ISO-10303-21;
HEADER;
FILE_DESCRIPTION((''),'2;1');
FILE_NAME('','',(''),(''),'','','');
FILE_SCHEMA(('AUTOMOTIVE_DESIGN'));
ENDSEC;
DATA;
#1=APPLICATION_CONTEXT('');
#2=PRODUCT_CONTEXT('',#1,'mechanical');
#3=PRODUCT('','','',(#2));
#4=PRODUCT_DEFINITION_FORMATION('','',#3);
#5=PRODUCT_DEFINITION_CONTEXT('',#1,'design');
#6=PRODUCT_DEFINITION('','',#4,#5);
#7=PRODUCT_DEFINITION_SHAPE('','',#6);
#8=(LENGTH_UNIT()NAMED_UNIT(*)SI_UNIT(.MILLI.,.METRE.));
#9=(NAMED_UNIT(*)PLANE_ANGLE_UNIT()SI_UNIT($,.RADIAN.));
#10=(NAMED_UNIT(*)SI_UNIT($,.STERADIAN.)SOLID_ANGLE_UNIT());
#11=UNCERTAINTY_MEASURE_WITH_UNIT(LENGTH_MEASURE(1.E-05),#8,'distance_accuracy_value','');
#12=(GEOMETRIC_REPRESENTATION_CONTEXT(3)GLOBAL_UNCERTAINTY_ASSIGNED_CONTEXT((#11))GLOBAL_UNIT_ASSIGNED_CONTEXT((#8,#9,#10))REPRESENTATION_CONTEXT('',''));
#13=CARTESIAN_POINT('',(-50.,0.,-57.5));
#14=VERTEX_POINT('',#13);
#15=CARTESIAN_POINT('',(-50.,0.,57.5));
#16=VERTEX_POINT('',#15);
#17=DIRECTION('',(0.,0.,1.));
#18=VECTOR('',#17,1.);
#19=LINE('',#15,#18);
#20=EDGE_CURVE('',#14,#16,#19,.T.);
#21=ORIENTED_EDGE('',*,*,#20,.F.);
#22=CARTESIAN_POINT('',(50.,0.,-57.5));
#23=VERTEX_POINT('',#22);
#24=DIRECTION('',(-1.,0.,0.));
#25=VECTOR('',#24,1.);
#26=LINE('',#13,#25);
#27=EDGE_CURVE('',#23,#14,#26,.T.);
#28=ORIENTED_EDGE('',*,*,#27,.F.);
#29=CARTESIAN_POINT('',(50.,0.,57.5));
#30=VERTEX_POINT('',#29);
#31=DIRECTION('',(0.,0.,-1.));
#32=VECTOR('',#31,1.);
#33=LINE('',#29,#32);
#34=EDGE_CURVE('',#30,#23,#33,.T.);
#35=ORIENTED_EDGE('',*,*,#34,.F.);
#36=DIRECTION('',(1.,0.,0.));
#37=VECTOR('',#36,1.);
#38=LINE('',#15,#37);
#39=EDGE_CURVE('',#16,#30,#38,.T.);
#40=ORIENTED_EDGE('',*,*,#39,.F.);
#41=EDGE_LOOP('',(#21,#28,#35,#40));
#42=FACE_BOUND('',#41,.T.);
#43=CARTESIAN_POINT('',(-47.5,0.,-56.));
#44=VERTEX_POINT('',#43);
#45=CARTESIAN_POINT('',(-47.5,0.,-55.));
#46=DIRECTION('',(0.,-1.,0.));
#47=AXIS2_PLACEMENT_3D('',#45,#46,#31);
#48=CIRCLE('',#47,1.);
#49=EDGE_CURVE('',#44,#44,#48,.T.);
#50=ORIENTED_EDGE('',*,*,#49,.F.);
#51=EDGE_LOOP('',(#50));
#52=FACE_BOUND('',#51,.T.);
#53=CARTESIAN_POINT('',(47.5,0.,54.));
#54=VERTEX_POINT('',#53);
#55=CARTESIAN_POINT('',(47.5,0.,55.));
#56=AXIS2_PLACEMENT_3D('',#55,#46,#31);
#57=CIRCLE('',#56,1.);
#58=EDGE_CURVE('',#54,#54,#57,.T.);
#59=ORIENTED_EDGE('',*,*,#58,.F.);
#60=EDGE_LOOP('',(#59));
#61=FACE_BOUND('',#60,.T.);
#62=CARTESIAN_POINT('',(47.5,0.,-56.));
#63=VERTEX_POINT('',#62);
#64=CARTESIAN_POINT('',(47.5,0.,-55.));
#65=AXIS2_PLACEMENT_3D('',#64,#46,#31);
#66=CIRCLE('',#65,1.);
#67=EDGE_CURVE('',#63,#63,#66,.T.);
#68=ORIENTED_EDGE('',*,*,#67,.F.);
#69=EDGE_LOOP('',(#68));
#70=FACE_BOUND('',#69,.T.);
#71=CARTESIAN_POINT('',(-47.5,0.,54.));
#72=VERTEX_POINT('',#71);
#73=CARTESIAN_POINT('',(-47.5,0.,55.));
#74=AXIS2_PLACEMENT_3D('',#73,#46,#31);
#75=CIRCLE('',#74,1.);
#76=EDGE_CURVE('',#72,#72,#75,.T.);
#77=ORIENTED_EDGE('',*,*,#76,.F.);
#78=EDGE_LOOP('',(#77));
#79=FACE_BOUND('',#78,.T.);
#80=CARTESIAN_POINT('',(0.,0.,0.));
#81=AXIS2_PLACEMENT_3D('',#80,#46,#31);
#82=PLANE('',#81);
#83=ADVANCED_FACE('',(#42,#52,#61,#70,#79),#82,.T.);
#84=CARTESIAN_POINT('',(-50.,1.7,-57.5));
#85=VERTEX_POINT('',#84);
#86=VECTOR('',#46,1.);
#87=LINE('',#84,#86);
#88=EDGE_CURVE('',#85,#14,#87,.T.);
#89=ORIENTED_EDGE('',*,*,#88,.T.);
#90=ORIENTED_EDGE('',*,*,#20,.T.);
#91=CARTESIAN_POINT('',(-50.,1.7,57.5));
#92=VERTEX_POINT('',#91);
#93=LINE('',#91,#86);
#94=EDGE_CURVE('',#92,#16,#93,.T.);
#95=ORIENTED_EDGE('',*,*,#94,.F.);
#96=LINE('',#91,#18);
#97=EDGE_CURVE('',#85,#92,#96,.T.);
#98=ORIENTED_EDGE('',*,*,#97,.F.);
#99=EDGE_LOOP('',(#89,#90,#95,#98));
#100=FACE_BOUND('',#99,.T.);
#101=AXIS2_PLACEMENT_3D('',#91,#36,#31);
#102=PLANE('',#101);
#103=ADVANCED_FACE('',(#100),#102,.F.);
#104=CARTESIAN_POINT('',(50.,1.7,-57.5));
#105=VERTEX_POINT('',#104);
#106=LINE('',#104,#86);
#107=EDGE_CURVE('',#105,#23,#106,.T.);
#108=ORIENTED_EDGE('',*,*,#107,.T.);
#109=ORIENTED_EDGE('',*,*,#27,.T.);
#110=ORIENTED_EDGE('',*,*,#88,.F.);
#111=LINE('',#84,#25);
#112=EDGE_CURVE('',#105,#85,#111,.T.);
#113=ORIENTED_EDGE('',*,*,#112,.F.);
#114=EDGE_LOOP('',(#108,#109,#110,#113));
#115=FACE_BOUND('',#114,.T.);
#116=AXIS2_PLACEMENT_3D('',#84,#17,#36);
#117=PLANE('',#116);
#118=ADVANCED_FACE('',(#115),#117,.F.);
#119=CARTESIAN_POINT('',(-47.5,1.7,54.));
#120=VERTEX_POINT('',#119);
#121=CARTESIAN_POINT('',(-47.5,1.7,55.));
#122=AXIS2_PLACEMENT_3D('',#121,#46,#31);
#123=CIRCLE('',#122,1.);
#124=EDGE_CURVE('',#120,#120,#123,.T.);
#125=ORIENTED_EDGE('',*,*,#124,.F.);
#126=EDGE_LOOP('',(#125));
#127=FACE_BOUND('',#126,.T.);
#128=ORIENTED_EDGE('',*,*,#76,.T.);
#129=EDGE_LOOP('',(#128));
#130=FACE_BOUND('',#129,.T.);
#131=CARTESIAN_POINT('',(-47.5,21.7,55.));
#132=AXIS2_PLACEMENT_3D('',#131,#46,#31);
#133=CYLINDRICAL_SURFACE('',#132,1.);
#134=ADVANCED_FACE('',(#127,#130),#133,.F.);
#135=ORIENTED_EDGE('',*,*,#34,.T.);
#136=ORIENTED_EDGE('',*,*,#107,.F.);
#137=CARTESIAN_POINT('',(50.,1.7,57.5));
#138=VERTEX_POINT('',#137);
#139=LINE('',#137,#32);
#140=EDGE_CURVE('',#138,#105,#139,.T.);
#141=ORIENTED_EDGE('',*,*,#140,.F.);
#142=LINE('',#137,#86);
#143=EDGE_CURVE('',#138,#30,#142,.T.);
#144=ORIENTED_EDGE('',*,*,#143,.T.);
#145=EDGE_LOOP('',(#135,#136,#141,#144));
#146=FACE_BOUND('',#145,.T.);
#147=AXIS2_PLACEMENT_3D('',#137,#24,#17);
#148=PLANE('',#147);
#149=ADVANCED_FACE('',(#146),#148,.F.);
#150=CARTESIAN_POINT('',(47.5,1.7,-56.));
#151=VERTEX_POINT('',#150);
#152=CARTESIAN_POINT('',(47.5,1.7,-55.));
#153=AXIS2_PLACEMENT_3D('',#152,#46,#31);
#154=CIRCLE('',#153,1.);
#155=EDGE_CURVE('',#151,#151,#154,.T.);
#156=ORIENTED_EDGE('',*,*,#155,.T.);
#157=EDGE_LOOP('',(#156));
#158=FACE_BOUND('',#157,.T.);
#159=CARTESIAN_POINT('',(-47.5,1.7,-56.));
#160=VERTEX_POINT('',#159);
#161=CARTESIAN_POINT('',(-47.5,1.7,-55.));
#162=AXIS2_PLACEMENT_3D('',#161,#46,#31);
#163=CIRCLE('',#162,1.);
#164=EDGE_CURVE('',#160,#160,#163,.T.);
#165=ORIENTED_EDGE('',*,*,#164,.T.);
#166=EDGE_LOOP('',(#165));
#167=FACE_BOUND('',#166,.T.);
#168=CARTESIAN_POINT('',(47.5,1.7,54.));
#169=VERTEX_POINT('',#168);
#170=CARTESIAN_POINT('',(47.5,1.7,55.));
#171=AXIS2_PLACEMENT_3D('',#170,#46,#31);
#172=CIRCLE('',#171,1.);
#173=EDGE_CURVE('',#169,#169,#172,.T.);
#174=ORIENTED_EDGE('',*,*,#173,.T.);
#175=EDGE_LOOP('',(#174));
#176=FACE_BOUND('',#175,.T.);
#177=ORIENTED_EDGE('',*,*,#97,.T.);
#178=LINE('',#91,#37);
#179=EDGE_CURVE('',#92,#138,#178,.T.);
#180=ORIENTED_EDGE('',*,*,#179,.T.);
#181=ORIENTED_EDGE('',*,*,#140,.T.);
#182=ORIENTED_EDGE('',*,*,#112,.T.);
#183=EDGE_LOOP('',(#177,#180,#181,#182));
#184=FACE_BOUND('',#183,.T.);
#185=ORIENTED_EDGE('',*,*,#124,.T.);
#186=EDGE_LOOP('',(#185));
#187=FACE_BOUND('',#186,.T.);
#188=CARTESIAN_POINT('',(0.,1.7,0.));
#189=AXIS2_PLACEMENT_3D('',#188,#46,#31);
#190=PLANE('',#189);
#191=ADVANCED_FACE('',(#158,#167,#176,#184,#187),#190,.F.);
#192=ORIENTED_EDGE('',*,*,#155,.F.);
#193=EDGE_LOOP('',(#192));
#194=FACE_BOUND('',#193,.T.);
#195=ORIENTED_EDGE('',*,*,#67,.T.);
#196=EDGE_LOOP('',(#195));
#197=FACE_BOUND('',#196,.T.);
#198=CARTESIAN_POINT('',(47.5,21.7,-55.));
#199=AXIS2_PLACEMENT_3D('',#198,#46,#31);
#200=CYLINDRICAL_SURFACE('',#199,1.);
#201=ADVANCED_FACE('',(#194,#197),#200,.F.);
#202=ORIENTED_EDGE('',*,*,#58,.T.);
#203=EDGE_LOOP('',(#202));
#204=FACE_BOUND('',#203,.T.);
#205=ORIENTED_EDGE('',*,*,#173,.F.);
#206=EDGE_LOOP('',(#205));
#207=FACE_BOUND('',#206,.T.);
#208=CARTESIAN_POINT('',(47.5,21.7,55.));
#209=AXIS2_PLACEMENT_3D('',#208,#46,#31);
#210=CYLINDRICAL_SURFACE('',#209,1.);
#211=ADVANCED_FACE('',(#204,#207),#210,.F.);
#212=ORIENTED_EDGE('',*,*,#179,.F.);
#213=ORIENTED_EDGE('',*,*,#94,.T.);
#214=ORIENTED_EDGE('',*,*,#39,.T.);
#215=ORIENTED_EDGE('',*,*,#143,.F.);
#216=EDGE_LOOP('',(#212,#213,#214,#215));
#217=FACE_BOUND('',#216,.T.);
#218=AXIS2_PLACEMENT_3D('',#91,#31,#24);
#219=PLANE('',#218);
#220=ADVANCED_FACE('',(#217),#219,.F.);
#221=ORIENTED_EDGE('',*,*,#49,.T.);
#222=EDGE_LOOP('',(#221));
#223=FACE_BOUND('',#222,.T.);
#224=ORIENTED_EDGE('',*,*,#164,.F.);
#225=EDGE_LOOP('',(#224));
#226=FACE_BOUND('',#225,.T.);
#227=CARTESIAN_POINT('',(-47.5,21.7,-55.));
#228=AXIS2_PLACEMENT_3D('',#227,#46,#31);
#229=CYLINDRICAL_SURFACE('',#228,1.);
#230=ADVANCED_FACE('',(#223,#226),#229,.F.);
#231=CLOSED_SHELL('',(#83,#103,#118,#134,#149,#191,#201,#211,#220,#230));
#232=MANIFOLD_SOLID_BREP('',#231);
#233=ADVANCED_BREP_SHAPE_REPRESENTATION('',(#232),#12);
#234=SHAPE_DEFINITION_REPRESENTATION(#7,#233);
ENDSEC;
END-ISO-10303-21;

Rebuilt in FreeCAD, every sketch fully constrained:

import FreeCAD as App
import Part
import Sketcher
from FreeCAD import Vector

doc = App.newDocument("Part")
params = doc.addObject("Spreadsheet::Sheet", "Params")
for row, (alias, value) in enumerate([
    ("sketch1_width", "100 mm"),
    ("sketch1_height", "115 mm"),
    ("pad1_length", "1.7 mm"),
    ("sketch2_diameter", "2 mm"),
    ("pocket1_length", "21.7 mm"),
], start=1):
    params.set(f"A{row}", alias)
    params.set(f"B{row}", "=" + value)
    params.setAlias(f"B{row}", alias)

body = doc.addObject("PartDesign::Body", "Body")

# Sketch on XZ plane
sketch1 = body.newObject("Sketcher::SketchObject", "Sketch")
sketch1.AttachmentSupport = (doc.getObject("XZ_Plane"), [""])
sketch1.MapMode = "FlatFace"
sketch1.addGeometry([
    Part.LineSegment(Vector(-50, -57.5, 0), Vector(-50, 57.5, 0)),
    Part.LineSegment(Vector(-50, 57.5, 0), Vector(50, 57.5, 0)),
    Part.LineSegment(Vector(50, 57.5, 0), Vector(50, -57.5, 0)),
    Part.LineSegment(Vector(50, -57.5, 0), Vector(-50, -57.5, 0)),
], False)
sketch1.addConstraint([
    Sketcher.Constraint("Coincident", 0, 2, 1, 1),
    Sketcher.Constraint("Coincident", 1, 2, 2, 1),
    Sketcher.Constraint("Coincident", 2, 2, 3, 1),
    Sketcher.Constraint("Coincident", 3, 2, 0, 1),
    Sketcher.Constraint("Vertical", 0),
    Sketcher.Constraint("Horizontal", 1),
    Sketcher.Constraint("Vertical", 2),
    Sketcher.Constraint("Horizontal", 3),
    Sketcher.Constraint("Symmetric", 0, 2, 2, 2, -1, 1),
    Sketcher.Constraint("DistanceX", 1, 1, 1, 2, 100.0),
    Sketcher.Constraint("DistanceY", 0, 1, 0, 2, 115.0),
])
sketch1.setExpression("Constraints[9]", "Params.sketch1_width")
sketch1.setExpression("Constraints[10]", "Params.sketch1_height")
pad1 = body.newObject("PartDesign::Pad", "Pad")
pad1.Profile = sketch1
pad1.setExpression("Length", "Params.pad1_length")
pad1.Reversed = True

# Sketch on XZ plane
sketch2 = body.newObject("Sketcher::SketchObject", "Sketch001")
sketch2.AttachmentSupport = (doc.getObject("XZ_Plane"), [""])
sketch2.MapMode = "FlatFace"
sketch2.addGeometry([
    Part.Circle(Vector(47.5, 55, 0), Vector(0, 0, 1), 1),
    Part.Circle(Vector(-47.5, 55, 0), Vector(0, 0, 1), 1),
    Part.Circle(Vector(-47.5, -55, 0), Vector(0, 0, 1), 1),
    Part.Circle(Vector(47.5, -55, 0), Vector(0, 0, 1), 1),
], False)
sketch2.addConstraint([
    Sketcher.Constraint("Equal", 0, 1),
    Sketcher.Constraint("Equal", 1, 2),
    Sketcher.Constraint("Equal", 2, 3),
    Sketcher.Constraint("Symmetric", 0, 3, 2, 3, -1, 1),
    Sketcher.Constraint("Symmetric", 1, 3, 3, 3, -1, 1),
    Sketcher.Constraint("Symmetric", 0, 3, 1, 3, -2),
    Sketcher.Constraint("Diameter", 0, 2.0),
    Sketcher.Constraint("DistanceY", -1, 1, 0, 3, 55.0),
    Sketcher.Constraint("DistanceX", 1, 3, 0, 3, 95.0),
])
sketch2.setExpression("Constraints[6]", "Params.sketch2_diameter")
pocket1 = body.newObject("PartDesign::Pocket", "Pocket")
pocket1.Profile = sketch2
pocket1.setExpression("Length", "Params.pocket1_length")

doc.recompute()
